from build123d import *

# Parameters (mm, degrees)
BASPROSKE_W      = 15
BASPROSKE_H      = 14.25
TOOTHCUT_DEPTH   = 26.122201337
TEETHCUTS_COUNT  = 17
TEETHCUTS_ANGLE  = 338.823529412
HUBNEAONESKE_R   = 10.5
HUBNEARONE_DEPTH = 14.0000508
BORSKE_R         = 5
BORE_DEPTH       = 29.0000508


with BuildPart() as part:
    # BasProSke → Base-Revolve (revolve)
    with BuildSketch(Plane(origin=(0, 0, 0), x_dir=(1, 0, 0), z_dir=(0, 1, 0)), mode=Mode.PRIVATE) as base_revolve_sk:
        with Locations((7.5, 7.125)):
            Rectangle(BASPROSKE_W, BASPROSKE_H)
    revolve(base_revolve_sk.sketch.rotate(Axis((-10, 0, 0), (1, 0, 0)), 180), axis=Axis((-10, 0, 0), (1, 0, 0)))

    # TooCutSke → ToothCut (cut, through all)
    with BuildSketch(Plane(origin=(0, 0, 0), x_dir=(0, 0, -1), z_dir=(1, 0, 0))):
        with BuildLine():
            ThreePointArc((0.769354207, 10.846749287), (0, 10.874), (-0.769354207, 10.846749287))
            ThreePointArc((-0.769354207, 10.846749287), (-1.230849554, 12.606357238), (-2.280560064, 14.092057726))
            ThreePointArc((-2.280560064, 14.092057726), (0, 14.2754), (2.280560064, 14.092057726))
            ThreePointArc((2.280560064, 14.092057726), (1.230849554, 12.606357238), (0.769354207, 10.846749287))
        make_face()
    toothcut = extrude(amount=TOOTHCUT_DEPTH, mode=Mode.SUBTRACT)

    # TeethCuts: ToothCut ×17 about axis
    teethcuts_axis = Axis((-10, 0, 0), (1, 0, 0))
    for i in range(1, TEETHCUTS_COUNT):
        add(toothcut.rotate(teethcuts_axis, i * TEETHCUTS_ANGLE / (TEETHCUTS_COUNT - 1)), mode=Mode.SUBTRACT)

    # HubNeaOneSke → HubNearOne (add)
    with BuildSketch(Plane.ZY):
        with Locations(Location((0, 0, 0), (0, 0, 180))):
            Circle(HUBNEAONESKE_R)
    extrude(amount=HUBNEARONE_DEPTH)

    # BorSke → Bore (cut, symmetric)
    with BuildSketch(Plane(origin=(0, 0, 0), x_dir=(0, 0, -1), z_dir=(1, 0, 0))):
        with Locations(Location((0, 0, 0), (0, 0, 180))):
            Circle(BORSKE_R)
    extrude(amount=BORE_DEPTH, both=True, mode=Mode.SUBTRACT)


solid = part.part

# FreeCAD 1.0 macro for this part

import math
import FreeCAD as App
import Part
import Sketcher

V = App.Vector


def add_polygon(sketch, points):
    """Adds a closed chain of lines whose ends are joined by coincident constraints."""
    first, n = sketch.GeometryCount, len(points)
    for a, b in zip(points, points[1:] + points[:1]):
        sketch.addGeometry(Part.LineSegment(App.Vector(*a, 0), App.Vector(*b, 0)), False)
    for i in range(n):
        sketch.addConstraint(Sketcher.Constraint("Coincident", first + i, 2, first + (i + 1) % n, 1))

doc = App.newDocument("Part")
params = doc.addObject("Spreadsheet::Sheet", "Params")
for row, (alias, value) in enumerate([
    ("sketch1_width", "15 mm"),
    ("sketch1_height", "14.25 mm"),
    ("revolution_angle", "360 deg"),
    ("sketch2_radius", "5.1 mm"),
    ("sketch3_diameter", "21 mm"),
    ("pad1_length", "14.000051 mm"),
    ("sketch4_diameter", "10 mm"),
    ("pocket2_length", "58.000102 mm"),
], start=1):
    params.set(f"A{row}", alias)
    params.set(f"B{row}", "=" + value)
    params.setAlias(f"B{row}", alias)

body = doc.addObject("PartDesign::Body", "Body")

sketch1 = body.newObject("Sketcher::SketchObject", "Sketch")
sketch1.AttachmentSupport = (doc.getObject("XZ_Plane"), [""])
sketch1.MapMode = "FlatFace"
add_polygon(sketch1, [(0, -14), (0, 0), (15, 0), (15, -14)])
sketch1.addConstraint([
    Sketcher.Constraint("Vertical", 0),
    Sketcher.Constraint("Horizontal", 1),
    Sketcher.Constraint("Vertical", 2),
    Sketcher.Constraint("Horizontal", 3),
    Sketcher.Constraint("Coincident", 0, 2, -1, 1),
    Sketcher.Constraint("DistanceX", 1, 1, 1, 2, 15.0),
    Sketcher.Constraint("DistanceY", 0, 1, 0, 2, 14.25),
])
sketch1.setExpression("Constraints[9]", "Params.sketch1_width")
sketch1.setExpression("Constraints[10]", "Params.sketch1_height")
revolution = body.newObject("PartDesign::Revolution", "Revolution")
revolution.Profile = sketch1
revolution.ReferenceAxis = (sketch1, ["H_Axis"])
revolution.setExpression("Angle", "Params.revolution_angle")

sketch2 = body.newObject("Sketcher::SketchObject", "Sketch001")
sketch2.AttachmentSupport = (doc.getObject("YZ_Plane"), [""])
sketch2.MapMode = "FlatFace"
sketch2.addGeometry([
    Part.ArcOfCircle(Part.Circle(V(0, 0, 0), V(0, 0, 1), 10.9), math.radians(-4.06), math.radians(4.06)),
    Part.ArcOfCircle(Part.Circle(V(10.5, -5.9, 0), V(0, 0, 1), 5.1), math.radians(44), math.radians(86)),
    Part.ArcOfCircle(Part.Circle(V(0, 0, 0), V(0, 0, 1), 14.3), math.radians(-9.19), math.radians(9.19)),
    Part.ArcOfCircle(Part.Circle(V(10.5, 5.9, 0), V(0, 0, 1), 5.1), math.radians(-86), math.radians(-44)),
], False)
sketch2.addConstraint([
    Sketcher.Constraint("Coincident", 0, 1, 1, 2),
    Sketcher.Constraint("Coincident", 1, 1, 2, 1),
    Sketcher.Constraint("Coincident", 2, 2, 3, 2),
    Sketcher.Constraint("Coincident", 3, 1, 0, 2),
    Sketcher.Constraint("Coincident", 0, 3, -1, 1),
    Sketcher.Constraint("Coincident", 2, 3, -1, 1),
    Sketcher.Constraint("Equal", 1, 3),
    Sketcher.Constraint("Symmetric", 1, 3, 3, 3, -1),
    Sketcher.Constraint("Radius", 1, 5.1),
    Sketcher.Constraint("Radius", 0, 10.874),
    Sketcher.Constraint("Radius", 2, 14.2754),
    Sketcher.Constraint("DistanceX", -1, 1, 1, 3, 10.453469),
    Sketcher.Constraint("DistanceX", -1, 1, 0, 1, 10.846749),
])
sketch2.setExpression("Constraints[8]", "Params.sketch2_radius")
pocket1 = body.newObject("PartDesign::Pocket", "Pocket")
pocket1.Profile = sketch2
pocket1.Type = "ThroughAll"
pocket1.Reversed = True
doc.recompute()

polarpattern = body.newObject("PartDesign::PolarPattern", "PolarPattern")
polarpattern.Originals = [pocket1]
polarpattern.Axis = (doc.getObject("X_Axis"), [""])
polarpattern.Angle = 360
polarpattern.Occurrences = 17
body.Tip = polarpattern

sketch3 = body.newObject("Sketcher::SketchObject", "Sketch002")
sketch3.AttachmentSupport = (doc.getObject("YZ_Plane"), [""])
sketch3.MapMode = "FlatFace"
sketch3.addGeometry(Part.Circle(V(0, 0, 0), V(0, 0, 1), 10), False)
sketch3.addConstraint([
    Sketcher.Constraint("Coincident", 0, 3, -1, 1),
    Sketcher.Constraint("Diameter", 0, 21.0),
])
sketch3.setExpression("Constraints[1]", "Params.sketch3_diameter")
pad1 = body.newObject("PartDesign::Pad", "Pad")
pad1.Profile = sketch3
pad1.setExpression("Length", "Params.pad1_length")
pad1.Reversed = True

sketch4 = body.newObject("Sketcher::SketchObject", "Sketch003")
sketch4.AttachmentSupport = (doc.getObject("YZ_Plane"), [""])
sketch4.MapMode = "FlatFace"
sketch4.addGeometry(Part.Circle(V(0, 0, 0), V(0, 0, 1), 5), False)
sketch4.addConstraint([
    Sketcher.Constraint("Coincident", 0, 3, -1, 1),
    Sketcher.Constraint("Diameter", 0, 10.0),
])
sketch4.setExpression("Constraints[1]", "Params.sketch4_diameter")
pocket2 = body.newObject("PartDesign::Pocket", "Pocket001")
pocket2.Profile = sketch4
pocket2.setExpression("Length", "Params.pocket2_length")
pocket2.Midplane = True

doc.recompute()
